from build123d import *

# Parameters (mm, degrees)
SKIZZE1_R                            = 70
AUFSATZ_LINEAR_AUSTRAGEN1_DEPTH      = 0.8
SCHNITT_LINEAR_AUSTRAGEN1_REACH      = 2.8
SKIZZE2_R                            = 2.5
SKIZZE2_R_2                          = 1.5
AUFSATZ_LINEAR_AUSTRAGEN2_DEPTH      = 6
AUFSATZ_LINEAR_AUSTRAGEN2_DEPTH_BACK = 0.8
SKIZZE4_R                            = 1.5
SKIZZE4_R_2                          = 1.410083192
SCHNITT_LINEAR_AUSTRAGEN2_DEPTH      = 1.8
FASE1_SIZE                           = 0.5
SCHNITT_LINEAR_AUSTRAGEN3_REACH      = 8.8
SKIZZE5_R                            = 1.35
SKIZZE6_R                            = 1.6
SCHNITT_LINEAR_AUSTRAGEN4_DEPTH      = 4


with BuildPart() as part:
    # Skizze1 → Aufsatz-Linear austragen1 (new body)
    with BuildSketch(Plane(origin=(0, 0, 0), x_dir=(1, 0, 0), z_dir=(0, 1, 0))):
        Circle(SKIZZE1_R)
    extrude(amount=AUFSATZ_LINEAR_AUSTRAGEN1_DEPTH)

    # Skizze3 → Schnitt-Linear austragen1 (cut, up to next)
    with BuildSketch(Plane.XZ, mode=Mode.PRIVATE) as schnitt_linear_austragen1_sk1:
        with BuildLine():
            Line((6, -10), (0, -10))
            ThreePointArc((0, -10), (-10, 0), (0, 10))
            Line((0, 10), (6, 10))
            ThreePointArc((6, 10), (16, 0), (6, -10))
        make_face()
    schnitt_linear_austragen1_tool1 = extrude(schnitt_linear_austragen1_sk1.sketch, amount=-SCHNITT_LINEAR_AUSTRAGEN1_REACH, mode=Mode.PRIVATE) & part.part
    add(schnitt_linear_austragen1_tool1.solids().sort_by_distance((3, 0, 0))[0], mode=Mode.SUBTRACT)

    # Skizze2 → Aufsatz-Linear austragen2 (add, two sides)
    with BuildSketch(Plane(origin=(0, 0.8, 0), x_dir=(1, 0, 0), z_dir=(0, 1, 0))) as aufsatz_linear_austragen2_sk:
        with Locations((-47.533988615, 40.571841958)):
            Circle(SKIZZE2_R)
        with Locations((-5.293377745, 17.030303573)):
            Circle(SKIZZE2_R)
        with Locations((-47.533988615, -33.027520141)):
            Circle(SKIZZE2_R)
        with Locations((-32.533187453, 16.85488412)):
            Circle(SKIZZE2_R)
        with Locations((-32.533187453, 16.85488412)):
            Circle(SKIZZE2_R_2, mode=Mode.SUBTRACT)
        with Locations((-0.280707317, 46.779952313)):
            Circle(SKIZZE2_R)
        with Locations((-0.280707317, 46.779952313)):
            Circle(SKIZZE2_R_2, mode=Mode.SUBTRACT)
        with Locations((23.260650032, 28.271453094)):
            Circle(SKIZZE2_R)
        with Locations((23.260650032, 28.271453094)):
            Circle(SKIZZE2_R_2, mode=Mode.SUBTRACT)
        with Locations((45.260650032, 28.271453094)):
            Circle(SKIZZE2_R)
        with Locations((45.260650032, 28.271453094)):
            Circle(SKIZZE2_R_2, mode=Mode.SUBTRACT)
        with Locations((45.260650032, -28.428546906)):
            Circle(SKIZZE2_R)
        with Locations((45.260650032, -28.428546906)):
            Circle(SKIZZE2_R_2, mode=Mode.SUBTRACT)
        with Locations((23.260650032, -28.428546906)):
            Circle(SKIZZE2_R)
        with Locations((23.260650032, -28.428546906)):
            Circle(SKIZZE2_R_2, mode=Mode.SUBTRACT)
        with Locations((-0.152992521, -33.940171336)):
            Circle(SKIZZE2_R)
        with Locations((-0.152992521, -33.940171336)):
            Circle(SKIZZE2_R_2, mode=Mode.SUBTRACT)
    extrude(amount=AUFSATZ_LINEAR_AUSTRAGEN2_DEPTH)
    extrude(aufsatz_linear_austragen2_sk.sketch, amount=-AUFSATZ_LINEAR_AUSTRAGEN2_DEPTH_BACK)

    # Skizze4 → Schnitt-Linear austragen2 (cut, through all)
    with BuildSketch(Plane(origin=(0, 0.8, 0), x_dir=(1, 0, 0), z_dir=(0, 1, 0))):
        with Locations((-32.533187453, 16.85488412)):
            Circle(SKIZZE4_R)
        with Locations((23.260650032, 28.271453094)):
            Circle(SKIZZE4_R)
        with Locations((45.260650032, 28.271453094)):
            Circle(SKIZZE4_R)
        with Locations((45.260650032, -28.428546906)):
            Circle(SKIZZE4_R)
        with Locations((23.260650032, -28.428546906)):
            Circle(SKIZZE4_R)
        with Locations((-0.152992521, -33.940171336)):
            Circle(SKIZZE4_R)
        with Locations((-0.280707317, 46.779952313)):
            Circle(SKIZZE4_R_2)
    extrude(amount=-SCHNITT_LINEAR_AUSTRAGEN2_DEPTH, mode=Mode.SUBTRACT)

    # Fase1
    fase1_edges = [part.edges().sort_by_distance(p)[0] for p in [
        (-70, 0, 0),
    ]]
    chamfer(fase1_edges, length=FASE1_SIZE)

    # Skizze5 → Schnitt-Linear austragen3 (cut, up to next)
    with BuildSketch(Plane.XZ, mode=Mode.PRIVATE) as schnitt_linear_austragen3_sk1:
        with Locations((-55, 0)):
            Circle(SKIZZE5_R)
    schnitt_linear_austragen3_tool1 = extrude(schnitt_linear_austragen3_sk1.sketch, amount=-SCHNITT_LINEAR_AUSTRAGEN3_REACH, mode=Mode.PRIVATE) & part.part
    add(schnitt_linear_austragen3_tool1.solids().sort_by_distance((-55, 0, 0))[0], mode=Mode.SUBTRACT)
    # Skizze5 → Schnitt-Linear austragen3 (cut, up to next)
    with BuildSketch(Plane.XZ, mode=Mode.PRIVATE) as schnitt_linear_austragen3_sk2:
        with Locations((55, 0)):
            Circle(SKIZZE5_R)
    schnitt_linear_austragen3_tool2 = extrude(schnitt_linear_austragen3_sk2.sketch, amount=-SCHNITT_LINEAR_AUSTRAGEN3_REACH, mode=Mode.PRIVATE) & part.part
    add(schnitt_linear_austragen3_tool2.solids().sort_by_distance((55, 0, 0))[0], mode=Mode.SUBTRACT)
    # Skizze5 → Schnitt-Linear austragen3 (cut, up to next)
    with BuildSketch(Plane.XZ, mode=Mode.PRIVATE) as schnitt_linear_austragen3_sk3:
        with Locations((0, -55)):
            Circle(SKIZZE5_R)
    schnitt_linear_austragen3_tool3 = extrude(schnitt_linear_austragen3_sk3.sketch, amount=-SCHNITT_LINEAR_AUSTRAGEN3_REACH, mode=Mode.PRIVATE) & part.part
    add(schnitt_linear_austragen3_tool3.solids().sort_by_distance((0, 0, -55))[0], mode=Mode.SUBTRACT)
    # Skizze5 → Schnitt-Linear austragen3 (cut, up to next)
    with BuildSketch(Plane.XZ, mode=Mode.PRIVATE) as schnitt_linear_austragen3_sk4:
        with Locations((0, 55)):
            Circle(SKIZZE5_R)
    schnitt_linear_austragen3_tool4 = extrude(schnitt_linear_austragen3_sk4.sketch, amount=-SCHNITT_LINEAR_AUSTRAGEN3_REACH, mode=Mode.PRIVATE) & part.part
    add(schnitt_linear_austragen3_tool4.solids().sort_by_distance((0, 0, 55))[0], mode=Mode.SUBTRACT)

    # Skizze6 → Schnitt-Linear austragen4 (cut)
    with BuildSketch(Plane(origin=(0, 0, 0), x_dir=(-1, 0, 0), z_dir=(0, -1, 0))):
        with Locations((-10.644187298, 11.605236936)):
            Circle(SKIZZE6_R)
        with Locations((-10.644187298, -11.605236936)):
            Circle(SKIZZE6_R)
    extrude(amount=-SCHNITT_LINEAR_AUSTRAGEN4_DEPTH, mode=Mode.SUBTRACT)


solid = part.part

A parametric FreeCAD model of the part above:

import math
import FreeCAD as App
import Part
import Sketcher
from FreeCAD import Vector
Q = App.Units.Quantity


def edges_at(feature, points):
    """Names of the edges that pass closest to the given points."""
    edges = feature.Shape.Edges
    near = lambda p: min(range(len(edges)), key=lambda i: edges[i].distToShape(Part.Vertex(*p))[0])
    return sorted({f"Edge{near(p) + 1}" for p in points})

doc = App.newDocument("Part")
body = doc.addObject("PartDesign::Body", "Body")

sketch1 = body.newObject("Sketcher::SketchObject", "Sketch")
sketch1.AttachmentSupport = (doc.getObject("XZ_Plane"), [""])
sketch1.MapMode = "FlatFace"
sketch1.addGeometry(Part.Circle(Vector(0, 0, 0), Vector(0, 0, 1), 70), False)
sketch1.addConstraint(Sketcher.Constraint("Coincident", 0, 3, -1, 1))
sketch1.addConstraint(Sketcher.Constraint("Diameter", 0, Q("140 mm")))
pad1 = body.newObject("PartDesign::Pad", "Pad")
pad1.Profile = sketch1
pad1.Length = 0.8
pad1.Reversed = True

sketch2 = body.newObject("Sketcher::SketchObject", "Sketch001")
sketch2.AttachmentSupport = (doc.getObject("XZ_Plane"), [""])
sketch2.MapMode = "FlatFace"
sketch2.addGeometry(Part.LineSegment(Vector(0, -10, 0), Vector(6, -10, 0)), False)
sketch2.addGeometry(Part.ArcOfCircle(Part.Circle(Vector(6, 0, 0), Vector(0, 0, 1), 10), math.radians(-90), math.radians(90)), False)
sketch2.addGeometry(Part.LineSegment(Vector(6, 10, 0), Vector(0, 10, 0)), False)
sketch2.addGeometry(Part.ArcOfCircle(Part.Circle(Vector(0, 0, 0), Vector(0, 0, 1), 10), math.radians(90), math.radians(270)), False)
sketch2.addConstraint(Sketcher.Constraint("Tangent", 0, 2, 1, 1))
sketch2.addConstraint(Sketcher.Constraint("Tangent", 1, 2, 2, 1))
sketch2.addConstraint(Sketcher.Constraint("Tangent", 2, 2, 3, 1))
sketch2.addConstraint(Sketcher.Constraint("Tangent", 3, 2, 0, 1))
sketch2.addConstraint(Sketcher.Constraint("Horizontal", 0))
sketch2.addConstraint(Sketcher.Constraint("Horizontal", 2))
sketch2.addConstraint(Sketcher.Constraint("Coincident", 3, 3, -1, 1))
sketch2.addConstraint(Sketcher.Constraint("Radius", 1, Q("10 mm")))
sketch2.addConstraint(Sketcher.Constraint("DistanceX", 0, 1, 0, 2, Q("6 mm")))
pocket1 = body.newObject("PartDesign::Pocket", "Pocket")
pocket1.Profile = sketch2
pocket1.Type = "UpToFirst"

sketch3 = body.newObject("Sketcher::SketchObject", "Sketch002")
sketch3.AttachmentSupport = (doc.getObject("XZ_Plane"), [""])
sketch3.MapMode = "FlatFace"
sketch3.AttachmentOffset = App.Placement(Vector(0, 0, -0.8), App.Rotation())
sketch3.addGeometry(Part.Circle(Vector(-47.5, -40.6, 0), Vector(0, 0, 1), 2.5), False)
sketch3.addGeometry(Part.Circle(Vector(-5.3, -17, 0), Vector(0, 0, 1), 2.5), False)
sketch3.addGeometry(Part.Circle(Vector(-47.5, 33, 0), Vector(0, 0, 1), 2.5), False)
sketch3.addGeometry(Part.Circle(Vector(-32.5, -16.9, 0), Vector(0, 0, 1), 2.5), False)
sketch3.addGeometry(Part.Circle(Vector(-32.5, -16.9, 0), Vector(0, 0, 1), 1.5), False)
sketch3.addGeometry(Part.Circle(Vector(-0.3, -46.8, 0), Vector(0, 0, 1), 2.5), False)
sketch3.addGeometry(Part.Circle(Vector(-0.3, -46.8, 0), Vector(0, 0, 1), 1.5), False)
sketch3.addGeometry(Part.Circle(Vector(23.3, -28.3, 0), Vector(0, 0, 1), 2.5), False)
sketch3.addGeometry(Part.Circle(Vector(23.3, -28.3, 0), Vector(0, 0, 1), 1.5), False)
sketch3.addGeometry(Part.Circle(Vector(45.3, -28.3, 0), Vector(0, 0, 1), 2.5), False)
sketch3.addGeometry(Part.Circle(Vector(45.3, -28.3, 0), Vector(0, 0, 1), 1.5), False)
sketch3.addGeometry(Part.Circle(Vector(45.3, 28.4, 0), Vector(0, 0, 1), 2.5), False)
sketch3.addGeometry(Part.Circle(Vector(45.3, 28.4, 0), Vector(0, 0, 1), 1.5), False)
sketch3.addGeometry(Part.Circle(Vector(23.3, 28.4, 0), Vector(0, 0, 1), 2.5), False)
sketch3.addGeometry(Part.Circle(Vector(23.3, 28.4, 0), Vector(0, 0, 1), 1.5), False)
sketch3.addGeometry(Part.Circle(Vector(-0.2, 33.9, 0), Vector(0, 0, 1), 2.5), False)
sketch3.addGeometry(Part.Circle(Vector(-0.2, 33.9, 0), Vector(0, 0, 1), 1.5), False)
sketch3.addConstraint(Sketcher.Constraint("Coincident", 4, 3, 3, 3))
sketch3.addConstraint(Sketcher.Constraint("Coincident", 6, 3, 5, 3))
sketch3.addConstraint(Sketcher.Constraint("Coincident", 8, 3, 7, 3))
sketch3.addConstraint(Sketcher.Constraint("Coincident", 10, 3, 9, 3))
sketch3.addConstraint(Sketcher.Constraint("Coincident", 12, 3, 11, 3))
sketch3.addConstraint(Sketcher.Constraint("Coincident", 14, 3, 13, 3))
sketch3.addConstraint(Sketcher.Constraint("Coincident", 16, 3, 15, 3))
sketch3.addConstraint(Sketcher.Constraint("Equal", 0, 1))
sketch3.addConstraint(Sketcher.Constraint("Equal", 1, 2))
sketch3.addConstraint(Sketcher.Constraint("Equal", 2, 3))
sketch3.addConstraint(Sketcher.Constraint("Equal", 3, 5))
sketch3.addConstraint(Sketcher.Constraint("Equal", 4, 6))
sketch3.addConstraint(Sketcher.Constraint("Equal", 5, 7))
sketch3.addConstraint(Sketcher.Constraint("Equal", 6, 8))
sketch3.addConstraint(Sketcher.Constraint("Equal", 7, 9))
sketch3.addConstraint(Sketcher.Constraint("Equal", 8, 10))
sketch3.addConstraint(Sketcher.Constraint("Equal", 9, 11))
sketch3.addConstraint(Sketcher.Constraint("Equal", 10, 12))
sketch3.addConstraint(Sketcher.Constraint("Equal", 11, 13))
sketch3.addConstraint(Sketcher.Constraint("Equal", 12, 14))
sketch3.addConstraint(Sketcher.Constraint("Equal", 13, 15))
sketch3.addConstraint(Sketcher.Constraint("Equal", 14, 16))
sketch3.addConstraint(Sketcher.Constraint("Horizontal", 8, 3, 9, 3))
sketch3.addConstraint(Sketcher.Constraint("Horizontal", 12, 3, 13, 3))
sketch3.addConstraint(Sketcher.Constraint("Vertical", 0, 3, 2, 3))
sketch3.addConstraint(Sketcher.Constraint("Vertical", 10, 3, 11, 3))
sketch3.addConstraint(Sketcher.Constraint("Vertical", 8, 3, 13, 3))
sketch3.addConstraint(Sketcher.Constraint("Diameter", 0, Q("5 mm")))
sketch3.addConstraint(Sketcher.Constraint("Diameter", 4, Q("3 mm")))
sketch3.addConstraint(Sketcher.Constraint("DistanceX", 7, 3, 9, 3, Q("22 mm")))
sketch3.addConstraint(Sketcher.Constraint("DistanceY", 9, 3, 11, 3, Q("56.7 mm")))
sketch3.addConstraint(Sketcher.Constraint("DistanceX", 0, 3, 3, 3, Q("15.000801 mm")))
sketch3.addConstraint(Sketcher.Constraint("DistanceY", 5, 3, 7, 3, Q("18.508499 mm")))
sketch3.addConstraint(Sketcher.Constraint("DistanceX", 0, 3, -1, 1, Q("47.533989 mm")))
sketch3.addConstraint(Sketcher.Constraint("DistanceY", 0, 3, -1, 1, Q("40.571842 mm")))
sketch3.addConstraint(Sketcher.Constraint("DistanceY", -1, 1, 2, 3, Q("33.02752 mm")))
sketch3.addConstraint(Sketcher.Constraint("DistanceX", -1, 1, 7, 3, Q("23.26065 mm")))
sketch3.addConstraint(Sketcher.Constraint("DistanceY", -1, 1, 15, 3, Q("33.940171 mm")))
sketch3.addConstraint(Sketcher.Constraint("DistanceX", 0, 3, 1, 3, Q("42.240611 mm")))
sketch3.addConstraint(Sketcher.Constraint("DistanceY", 0, 3, 1, 3, Q("23.541538 mm")))
sketch3.addConstraint(Sketcher.Constraint("DistanceY", 1, 3, 3, 3, Q("0.175419 mm")))
sketch3.addConstraint(Sketcher.Constraint("DistanceX", 1, 3, 5, 3, Q("5.01267 mm")))
sketch3.addConstraint(Sketcher.Constraint("DistanceY", 5, 3, 1, 3, Q("29.749649 mm")))
sketch3.addConstraint(Sketcher.Constraint("DistanceX", 15, 3, -1, 1, Q("0.152993 mm")))
pad2 = body.newObject("PartDesign::Pad", "Pad001")
pad2.Profile = sketch3
pad2.Type = "TwoLengths"
pad2.Length = 6
pad2.Length2 = 0.8
pad2.Reversed = True

sketch4 = body.newObject("Sketcher::SketchObject", "Sketch003")
sketch4.AttachmentSupport = (doc.getObject("XZ_Plane"), [""])
sketch4.MapMode = "FlatFace"
sketch4.AttachmentOffset = App.Placement(Vector(0, 0, -0.8), App.Rotation())
sketch4.addGeometry(Part.Circle(Vector(-32.5, -16.9, 0), Vector(0, 0, 1), 1.5), False)
sketch4.addGeometry(Part.Circle(Vector(23.3, -28.3, 0), Vector(0, 0, 1), 1.5), False)
sketch4.addGeometry(Part.Circle(Vector(45.3, -28.3, 0), Vector(0, 0, 1), 1.5), False)
sketch4.addGeometry(Part.Circle(Vector(45.3, 28.4, 0), Vector(0, 0, 1), 1.5), False)
sketch4.addGeometry(Part.Circle(Vector(23.3, 28.4, 0), Vector(0, 0, 1), 1.5), False)
sketch4.addGeometry(Part.Circle(Vector(-0.2, 33.9, 0), Vector(0, 0, 1), 1.5), False)
sketch4.addGeometry(Part.Circle(Vector(-0.3, -46.8, 0), Vector(0, 0, 1), 1.4), False)
sketch4.addConstraint(Sketcher.Constraint("Equal", 0, 1))
sketch4.addConstraint(Sketcher.Constraint("Equal", 1, 2))
sketch4.addConstraint(Sketcher.Constraint("Equal", 2, 3))
sketch4.addConstraint(Sketcher.Constraint("Equal", 3, 4))
sketch4.addConstraint(Sketcher.Constraint("Equal", 4, 5))
sketch4.addConstraint(Sketcher.Constraint("Horizontal", 1, 3, 2, 3))
sketch4.addConstraint(Sketcher.Constraint("Horizontal", 3, 3, 4, 3))
sketch4.addConstraint(Sketcher.Constraint("Vertical", 2, 3, 3, 3))
sketch4.addConstraint(Sketcher.Constraint("Vertical", 1, 3, 4, 3))
sketch4.addConstraint(Sketcher.Constraint("Diameter", 0, Q("3 mm")))
sketch4.addConstraint(Sketcher.Constraint("DistanceX", 1, 3, 2, 3, Q("22 mm")))
sketch4.addConstraint(Sketcher.Constraint("DistanceY", 2, 3, 3, 3, Q("56.7 mm")))
sketch4.addConstraint(Sketcher.Constraint("Diameter", 6, Q("2.820166 mm")))
sketch4.addConstraint(Sketcher.Constraint("DistanceY", 6, 3, 1, 3, Q("18.508499 mm")))
sketch4.addConstraint(Sketcher.Constraint("DistanceX", -1, 1, 1, 3, Q("23.26065 mm")))
sketch4.addConstraint(Sketcher.Constraint("DistanceY", -1, 1, 5, 3, Q("33.940171 mm")))
sketch4.addConstraint(Sketcher.Constraint("DistanceY", 1, 3, 0, 3, Q("11.416569 mm")))
sketch4.addConstraint(Sketcher.Constraint("DistanceX", 0, 3, 6, 3, Q("32.25248 mm")))
sketch4.addConstraint(Sketcher.Constraint("DistanceX", 0, 3, -1, 1, Q("32.533187 mm")))
sketch4.addConstraint(Sketcher.Constraint("DistanceY", 0, 3, -1, 1, Q("16.854884 mm")))
sketch4.addConstraint(Sketcher.Constraint("DistanceX", 5, 3, -1, 1, Q("0.152993 mm")))
pocket2 = body.newObject("PartDesign::Pocket", "Pocket001")
pocket2.Profile = sketch4
pocket2.Type = "ThroughAll"
pocket2.Reversed = True
doc.recompute()

chamfer = body.newObject("PartDesign::Chamfer", "Chamfer")
chamfer.Base = (pocket2, edges_at(pocket2, [(-70, 0, 0)]))
chamfer.Size = 0.5

sketch5 = body.newObject("Sketcher::SketchObject", "Sketch004")
sketch5.AttachmentSupport = (doc.getObject("XZ_Plane"), [""])
sketch5.MapMode = "FlatFace"
sketch5.addGeometry(Part.Circle(Vector(-55, 0, 0), Vector(0, 0, 1), 1.4), False)
sketch5.addConstraint(Sketcher.Constraint("PointOnObject", 0, 3, -1))
sketch5.addConstraint(Sketcher.Constraint("Diameter", 0, Q("2.7 mm")))
sketch5.addConstraint(Sketcher.Constraint("DistanceX", 0, 3, -1, 1, Q("55 mm")))
pocket3 = body.newObject("PartDesign::Pocket", "Pocket002")
pocket3.Profile = sketch5
pocket3.Type = "UpToFirst"

sketch6 = body.newObject("Sketcher::SketchObject", "Sketch005")
sketch6.AttachmentSupport = (doc.getObject("XZ_Plane"), [""])
sketch6.MapMode = "FlatFace"
sketch6.addGeometry(Part.Circle(Vector(55, 0, 0), Vector(0, 0, 1), 1.4), False)
sketch6.addConstraint(Sketcher.Constraint("PointOnObject", 0, 3, -1))
sketch6.addConstraint(Sketcher.Constraint("Diameter", 0, Q("2.7 mm")))
sketch6.addConstraint(Sketcher.Constraint("DistanceX", -1, 1, 0, 3, Q("55 mm")))
pocket4 = body.newObject("PartDesign::Pocket", "Pocket003")
pocket4.Profile = sketch6
pocket4.Type = "UpToFirst"

sketch7 = body.newObject("Sketcher::SketchObject", "Sketch006")
sketch7.AttachmentSupport = (doc.getObject("XZ_Plane"), [""])
sketch7.MapMode = "FlatFace"
sketch7.addGeometry(Part.Circle(Vector(0, -55, 0), Vector(0, 0, 1), 1.4), False)
sketch7.addConstraint(Sketcher.Constraint("PointOnObject", 0, 3, -2))
sketch7.addConstraint(Sketcher.Constraint("Diameter", 0, Q("2.7 mm")))
sketch7.addConstraint(Sketcher.Constraint("DistanceY", 0, 3, -1, 1, Q("55 mm")))
pocket5 = body.newObject("PartDesign::Pocket", "Pocket004")
pocket5.Profile = sketch7
pocket5.Type = "UpToFirst"

sketch8 = body.newObject("Sketcher::SketchObject", "Sketch007")
sketch8.AttachmentSupport = (doc.getObject("XZ_Plane"), [""])
sketch8.MapMode = "FlatFace"
sketch8.addGeometry(Part.Circle(Vector(0, 55, 0), Vector(0, 0, 1), 1.4), False)
sketch8.addConstraint(Sketcher.Constraint("PointOnObject", 0, 3, -2))
sketch8.addConstraint(Sketcher.Constraint("Diameter", 0, Q("2.7 mm")))
sketch8.addConstraint(Sketcher.Constraint("DistanceY", -1, 1, 0, 3, Q("55 mm")))
pocket6 = body.newObject("PartDesign::Pocket", "Pocket005")
pocket6.Profile = sketch8
pocket6.Type = "UpToFirst"

sketch9 = body.newObject("Sketcher::SketchObject", "Sketch008")
sketch9.AttachmentSupport = (doc.getObject("XZ_Plane"), [""])
sketch9.MapMode = "FlatFace"
sketch9.addGeometry(Part.Circle(Vector(10.6, -11.6, 0), Vector(0, 0, 1), 1.6), False)
sketch9.addGeometry(Part.Circle(Vector(10.6, 11.6, 0), Vector(0, 0, 1), 1.6), False)
sketch9.addConstraint(Sketcher.Constraint("Equal", 0, 1))
sketch9.addConstraint(Sketcher.Constraint("Symmetric", 0, 3, 1, 3, -1))
sketch9.addConstraint(Sketcher.Constraint("Diameter", 0, Q("3.2 mm")))
sketch9.addConstraint(Sketcher.Constraint("DistanceX", -1, 1, 0, 3, Q("10.644187 mm")))
sketch9.addConstraint(Sketcher.Constraint("DistanceY", 0, 3, -1, 1, Q("11.605237 mm")))
pocket7 = body.newObject("PartDesign::Pocket", "Pocket006")
pocket7.Profile = sketch9
pocket7.Length = 4

doc.recompute()
